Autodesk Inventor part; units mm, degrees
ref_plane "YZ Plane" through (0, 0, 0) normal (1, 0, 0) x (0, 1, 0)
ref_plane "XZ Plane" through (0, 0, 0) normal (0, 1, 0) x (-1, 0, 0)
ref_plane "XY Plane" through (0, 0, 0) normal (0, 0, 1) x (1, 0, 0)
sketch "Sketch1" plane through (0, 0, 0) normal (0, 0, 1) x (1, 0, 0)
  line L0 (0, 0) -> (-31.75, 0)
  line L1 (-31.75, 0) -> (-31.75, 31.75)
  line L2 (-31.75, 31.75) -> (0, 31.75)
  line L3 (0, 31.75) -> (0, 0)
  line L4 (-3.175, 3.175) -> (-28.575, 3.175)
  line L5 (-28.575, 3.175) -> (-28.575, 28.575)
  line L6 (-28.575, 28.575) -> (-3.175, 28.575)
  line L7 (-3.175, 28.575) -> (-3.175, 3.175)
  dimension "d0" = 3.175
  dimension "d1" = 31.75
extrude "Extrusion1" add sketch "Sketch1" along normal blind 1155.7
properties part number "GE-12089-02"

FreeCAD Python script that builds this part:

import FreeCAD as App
import Part
import Sketcher

V = App.Vector
Q = App.Units.Quantity

doc = App.newDocument("Part")
body = doc.addObject("PartDesign::Body", "Body")

# Sketch on XY plane
sketch1 = doc.addObject("Sketcher::SketchObject", "Sketch")
body.addObject(sketch1)
sketch1.AttachmentSupport = (doc.XY_Plane, [""])
sketch1.MapMode = "FlatFace"
sketch1.addGeometry([
    Part.LineSegment(V(-31.75, 0, 0), V(0, 0, 0)),  # 0
    Part.LineSegment(V(0, 0, 0), V(0, 31.75, 0)),  # 1
    Part.LineSegment(V(0, 31.75, 0), V(-31.75, 31.75, 0)),  # 2
    Part.LineSegment(V(-31.75, 31.75, 0), V(-31.75, 0, 0)),  # 3
    Part.LineSegment(V(-3.175, 28.575, 0), V(-3.175, 3.175, 0)),  # 4
    Part.LineSegment(V(-3.175, 3.175, 0), V(-28.575, 3.175, 0)),  # 5
    Part.LineSegment(V(-28.575, 3.175, 0), V(-28.575, 28.575, 0)),  # 6
    Part.LineSegment(V(-28.575, 28.575, 0), V(-3.175, 28.575, 0)),  # 7
], False)
sketch1.addConstraint([
    Sketcher.Constraint("Coincident", 0, 2, 1, 1),
    Sketcher.Constraint("Coincident", 1, 2, 2, 1),
    Sketcher.Constraint("Coincident", 2, 2, 3, 1),
    Sketcher.Constraint("Coincident", 3, 2, 0, 1),
    Sketcher.Constraint("Coincident", 4, 2, 5, 1),
    Sketcher.Constraint("Coincident", 5, 2, 6, 1),
    Sketcher.Constraint("Coincident", 6, 2, 7, 1),
    Sketcher.Constraint("Coincident", 7, 2, 4, 1),
    Sketcher.Constraint("Horizontal", 0),
    Sketcher.Constraint("Vertical", 1),
    Sketcher.Constraint("Horizontal", 2),
    Sketcher.Constraint("Vertical", 3),
    Sketcher.Constraint("Vertical", 4),
    Sketcher.Constraint("Horizontal", 5),
    Sketcher.Constraint("Vertical", 6),
    Sketcher.Constraint("Horizontal", 7),
    Sketcher.Constraint("Coincident", 0, 2, -1, 1),
    Sketcher.Constraint("Equal", 2, 1),
    Sketcher.Constraint("Equal", 7, 4),
    Sketcher.Constraint("DistanceX", 0, 1, 0, 2, Q("1.25 in")),
    Sketcher.Constraint("DistanceX", 5, 2, 5, 1, Q("1 in")),
    Sketcher.Constraint("DistanceX", 4, 2, -1, 1, Q("0.125 in")),
    Sketcher.Constraint("DistanceY", -1, 1, 4, 2, Q("0.125 in")),
])
pad1 = doc.addObject("PartDesign::Pad", "Pad")
body.addObject(pad1)
pad1.Profile = sketch1
pad1.Length = Q("45.5 in")

doc.recompute()
